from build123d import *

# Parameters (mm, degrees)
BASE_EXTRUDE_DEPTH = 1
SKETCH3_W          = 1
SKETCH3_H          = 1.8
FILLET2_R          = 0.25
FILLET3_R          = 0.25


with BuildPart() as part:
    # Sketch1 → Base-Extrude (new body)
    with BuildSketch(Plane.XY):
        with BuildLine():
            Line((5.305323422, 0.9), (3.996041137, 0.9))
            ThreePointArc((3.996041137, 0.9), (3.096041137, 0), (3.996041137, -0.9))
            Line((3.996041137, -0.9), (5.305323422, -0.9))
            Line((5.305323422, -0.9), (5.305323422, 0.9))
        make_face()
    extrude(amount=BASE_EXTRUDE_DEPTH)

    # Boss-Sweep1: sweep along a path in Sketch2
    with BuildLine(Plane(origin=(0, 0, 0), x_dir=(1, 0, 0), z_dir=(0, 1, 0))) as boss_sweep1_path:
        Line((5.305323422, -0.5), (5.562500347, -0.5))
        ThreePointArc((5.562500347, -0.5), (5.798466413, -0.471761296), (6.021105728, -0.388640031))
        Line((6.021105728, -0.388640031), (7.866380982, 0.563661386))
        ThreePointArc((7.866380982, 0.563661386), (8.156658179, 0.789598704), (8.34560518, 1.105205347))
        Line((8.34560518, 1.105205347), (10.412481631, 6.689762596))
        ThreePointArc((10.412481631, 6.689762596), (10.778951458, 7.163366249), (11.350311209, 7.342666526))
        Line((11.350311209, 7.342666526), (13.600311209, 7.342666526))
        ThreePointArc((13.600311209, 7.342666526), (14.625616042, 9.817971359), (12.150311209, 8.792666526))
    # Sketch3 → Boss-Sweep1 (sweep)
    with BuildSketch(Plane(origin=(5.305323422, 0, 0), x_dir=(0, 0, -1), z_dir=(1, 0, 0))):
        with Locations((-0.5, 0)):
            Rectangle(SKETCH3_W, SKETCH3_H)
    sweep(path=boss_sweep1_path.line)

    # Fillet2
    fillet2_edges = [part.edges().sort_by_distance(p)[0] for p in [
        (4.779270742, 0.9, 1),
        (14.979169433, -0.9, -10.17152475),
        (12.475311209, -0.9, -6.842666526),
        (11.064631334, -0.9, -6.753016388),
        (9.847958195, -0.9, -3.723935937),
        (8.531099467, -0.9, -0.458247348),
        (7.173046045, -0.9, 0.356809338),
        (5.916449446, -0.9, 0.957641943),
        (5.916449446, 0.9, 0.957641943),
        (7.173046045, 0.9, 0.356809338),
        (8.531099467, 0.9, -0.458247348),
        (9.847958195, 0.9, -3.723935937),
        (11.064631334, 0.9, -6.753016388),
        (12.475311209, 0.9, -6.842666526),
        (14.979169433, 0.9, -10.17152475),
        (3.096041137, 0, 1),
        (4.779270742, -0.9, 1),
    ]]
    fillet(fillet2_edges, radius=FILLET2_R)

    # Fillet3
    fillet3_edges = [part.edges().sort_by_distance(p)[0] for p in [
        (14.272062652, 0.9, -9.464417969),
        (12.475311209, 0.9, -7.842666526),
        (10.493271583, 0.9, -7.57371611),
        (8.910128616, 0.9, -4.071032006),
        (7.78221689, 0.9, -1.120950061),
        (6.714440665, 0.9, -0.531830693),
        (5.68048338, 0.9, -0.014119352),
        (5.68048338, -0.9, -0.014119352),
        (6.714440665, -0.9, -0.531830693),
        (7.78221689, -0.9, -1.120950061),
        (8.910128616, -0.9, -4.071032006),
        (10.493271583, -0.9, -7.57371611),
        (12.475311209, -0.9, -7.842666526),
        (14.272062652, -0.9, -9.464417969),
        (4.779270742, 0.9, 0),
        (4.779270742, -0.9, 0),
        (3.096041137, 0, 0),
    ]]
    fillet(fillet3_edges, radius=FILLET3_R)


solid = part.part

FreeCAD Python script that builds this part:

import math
import FreeCAD as App
import Part
import Sketcher
Q = App.Units.Quantity


def edges_at(feature, points):
    """Names of the edges that pass closest to the given points."""
    edges = feature.Shape.Edges
    near = lambda p: min(range(len(edges)), key=lambda i: edges[i].distToShape(Part.Vertex(*p))[0])
    return sorted({f"Edge{near(p) + 1}" for p in points})

doc = App.newDocument("Part")
body = doc.addObject("PartDesign::Body", "Body")

sketch1 = body.newObject("Sketcher::SketchObject", "Sketch")
sketch1.AttachmentSupport = (doc.getObject("XY_Plane"), [""])
sketch1.MapMode = "FlatFace"
sketch1.addGeometry(Part.LineSegment(App.Vector(5.305323, 0.9, 0), App.Vector(3.996041, 0.9, 0)), False)
sketch1.addGeometry(Part.ArcOfCircle(Part.Circle(App.Vector(3.996041, 0, 0), App.Vector(0, 0, 1), 0.9), math.radians(90), math.radians(270)), False)
sketch1.addGeometry(Part.LineSegment(App.Vector(3.996041, -0.9, 0), App.Vector(5.305323, -0.9, 0)), False)
sketch1.addGeometry(Part.LineSegment(App.Vector(5.305323, -0.9, 0), App.Vector(5.305323, 0.9, 0)), False)
sketch1.addConstraint(Sketcher.Constraint("Tangent", 0, 2, 1, 1))
sketch1.addConstraint(Sketcher.Constraint("Tangent", 1, 2, 2, 1))
sketch1.addConstraint(Sketcher.Constraint("Coincident", 2, 2, 3, 1))
sketch1.addConstraint(Sketcher.Constraint("Coincident", 3, 2, 0, 1))
sketch1.addConstraint(Sketcher.Constraint("Horizontal", 0))
sketch1.addConstraint(Sketcher.Constraint("Horizontal", 2))
sketch1.addConstraint(Sketcher.Constraint("Vertical", 3))
sketch1.addConstraint(Sketcher.Constraint("PointOnObject", 1, 3, -1))
sketch1.addConstraint(Sketcher.Constraint("Radius", 1, Q("0.9 mm")))
sketch1.addConstraint(Sketcher.Constraint("DistanceX", 0, 2, 0, 1, Q("1.309282 mm")))
sketch1.addConstraint(Sketcher.Constraint("DistanceX", -1, 1, 1, 3, Q("3.996041 mm")))
pad1 = body.newObject("PartDesign::Pad", "Pad")
pad1.Profile = sketch1
pad1.Length = 1

sketch2 = body.newObject("Sketcher::SketchObject", "Sketch001")
sketch2.AttachmentSupport = (doc.getObject("YZ_Plane"), [""])
sketch2.MapMode = "FlatFace"
sketch2.AttachmentOffset = App.Placement(App.Vector(0, 0, 5.305323), App.Rotation())
sketch2.addGeometry(Part.LineSegment(App.Vector(0.9, 1, 0), App.Vector(-0.9, 1, 0)), False)
sketch2.addGeometry(Part.LineSegment(App.Vector(-0.9, 1, 0), App.Vector(-0.9, 0, 0)), False)
sketch2.addGeometry(Part.LineSegment(App.Vector(-0.9, 0, 0), App.Vector(0.9, 0, 0)), False)
sketch2.addGeometry(Part.LineSegment(App.Vector(0.9, 0, 0), App.Vector(0.9, 1, 0)), False)
sketch2.addConstraint(Sketcher.Constraint("Coincident", 0, 2, 1, 1))
sketch2.addConstraint(Sketcher.Constraint("Coincident", 1, 2, 2, 1))
sketch2.addConstraint(Sketcher.Constraint("Coincident", 2, 2, 3, 1))
sketch2.addConstraint(Sketcher.Constraint("Coincident", 3, 2, 0, 1))
sketch2.addConstraint(Sketcher.Constraint("Horizontal", 0))
sketch2.addConstraint(Sketcher.Constraint("Vertical", 1))
sketch2.addConstraint(Sketcher.Constraint("Horizontal", 2))
sketch2.addConstraint(Sketcher.Constraint("Vertical", 3))
sketch2.addConstraint(Sketcher.Constraint("Symmetric", 1, 2, 2, 2, -1, 1))
sketch2.addConstraint(Sketcher.Constraint("DistanceY", 1, 2, 1, 1, Q("1 mm")))
sketch2.addConstraint(Sketcher.Constraint("DistanceX", 0, 2, 0, 1, Q("1.8 mm")))

sketch3 = body.newObject("Sketcher::SketchObject", "Sketch002")
sketch3.AttachmentSupport = (doc.getObject("XZ_Plane"), [""])
sketch3.MapMode = "FlatFace"
sketch3.addGeometry(Part.LineSegment(App.Vector(5.305323, 0.5, 0), App.Vector(5.5625, 0.5, 0)), False)
sketch3.addGeometry(Part.ArcOfCircle(Part.Circle(App.Vector(5.5625, -0.5, 0), App.Vector(0, 0, 1), 1), math.radians(62.702848), math.radians(90)), False)
sketch3.addGeometry(Part.LineSegment(App.Vector(6.021106, 0.38864, 0), App.Vector(7.866381, -0.563661, 0)), False)
sketch3.addGeometry(Part.ArcOfCircle(Part.Circle(App.Vector(7.407776, -1.452301, 0), App.Vector(0, 0, 1), 1), math.radians(20.3098), math.radians(62.702848)), False)
sketch3.addGeometry(Part.LineSegment(App.Vector(8.345605, -1.105205, 0), App.Vector(10.412482, -6.689763, 0)), False)
sketch3.addGeometry(Part.ArcOfCircle(Part.Circle(App.Vector(11.350311, -6.342667, 0), App.Vector(0, 0, 1), 1), math.radians(-159.6902), math.radians(-90)), False)
sketch3.addGeometry(Part.LineSegment(App.Vector(11.350311, -7.342667, 0), App.Vector(13.600311, -7.342667, 0)), False)
sketch3.addGeometry(Part.ArcOfCircle(Part.Circle(App.Vector(13.600311, -8.792667, 0), App.Vector(0, 0, 1), 1.45), math.radians(180), math.radians(450)), False)
sketch3.addConstraint(Sketcher.Constraint("Tangent", 0, 2, 1, 2))
sketch3.addConstraint(Sketcher.Constraint("Tangent", 1, 1, 2, 1))
sketch3.addConstraint(Sketcher.Constraint("Tangent", 2, 2, 3, 2))
sketch3.addConstraint(Sketcher.Constraint("Tangent", 3, 1, 4, 1))
sketch3.addConstraint(Sketcher.Constraint("Tangent", 4, 2, 5, 1))
sketch3.addConstraint(Sketcher.Constraint("Tangent", 5, 2, 6, 1))
sketch3.addConstraint(Sketcher.Constraint("Tangent", 6, 2, 7, 2))
sketch3.addConstraint(Sketcher.Constraint("Horizontal", 0))
sketch3.addConstraint(Sketcher.Constraint("Horizontal", 6))
sketch3.addConstraint(Sketcher.Constraint("Equal", 1, 3))
sketch3.addConstraint(Sketcher.Constraint("Equal", 3, 5))
sketch3.addConstraint(Sketcher.Constraint("Radius", 1, Q("1 mm")))
sketch3.addConstraint(Sketcher.Constraint("Radius", 7, Q("1.45 mm")))
sketch3.addConstraint(Sketcher.Constraint("DistanceX", 6, 1, 6, 2, Q("2.25 mm")))
sketch3.addConstraint(Sketcher.Constraint("DistanceY", 1, 3, -1, 1, Q("0.5 mm")))
sketch3.addConstraint(Sketcher.Constraint("DistanceY", 7, 1, 5, 2, Q("1.45 mm")))
sketch3.addConstraint(Sketcher.Constraint("DistanceX", -1, 1, 1, 3, Q("5.5625 mm")))
sketch3.addConstraint(Sketcher.Constraint("DistanceY", 3, 3, -1, 1, Q("1.452301 mm")))
sketch3.addConstraint(Sketcher.Constraint("DistanceX", 1, 1, 3, 1, Q("2.324499 mm")))
sketch3.addConstraint(Sketcher.Constraint("DistanceX", 2, 2, 4, 2, Q("2.546101 mm")))
sketch3.addConstraint(Sketcher.Constraint("DistanceY", 4, 2, 2, 2, Q("6.126101 mm")))
sketch3.addConstraint(Sketcher.Constraint("DistanceX", 0, 1, 0, 2, Q("0.257177 mm")))
doc.recompute()

additivepipe = body.newObject("PartDesign::AdditivePipe", "AdditivePipe")
additivepipe.Profile = sketch2
additivepipe.Spine = (sketch3, ["Edge1", "Edge2", "Edge3", "Edge4", "Edge5", "Edge6", "Edge7", "Edge8"])
doc.recompute()

fillet = body.newObject("PartDesign::Fillet", "Fillet")
fillet.Base = (additivepipe, edges_at(additivepipe, [
    (4.779, 0.9, 1),
    (14.979, -0.9, -10.172),
    (12.475, -0.9, -6.843),
    (11.065, -0.9, -6.753),
    (9.848, -0.9, -3.724),
    (8.531, -0.9, -0.458),
    (7.173, -0.9, 0.357),
    (5.916, -0.9, 0.958),
    (5.916, 0.9, 0.958),
    (7.173, 0.9, 0.357),
    (8.531, 0.9, -0.458),
    (9.848, 0.9, -3.724),
    (11.065, 0.9, -6.753),
    (12.475, 0.9, -6.843),
    (14.979, 0.9, -10.172),
    (3.096, 0, 1),
    (4.779, -0.9, 1),
]))
fillet.Radius = 0.25
doc.recompute()

fillet2 = body.newObject("PartDesign::Fillet", "Fillet001")
fillet2.Base = (fillet, edges_at(fillet, [
    (14.272, 0.9, -9.464),
    (12.475, 0.9, -7.843),
    (10.493, 0.9, -7.574),
    (8.91, 0.9, -4.071),
    (7.782, 0.9, -1.121),
    (6.714, 0.9, -0.532),
    (5.68, 0.9, -0.014),
    (5.68, -0.9, -0.014),
    (6.714, -0.9, -0.532),
    (7.782, -0.9, -1.121),
    (8.91, -0.9, -4.071),
    (10.493, -0.9, -7.574),
    (12.475, -0.9, -7.843),
    (14.272, -0.9, -9.464),
    (4.779, 0.9, 0),
    (4.779, -0.9, 0),
    (3.096, 0, 0),
]))
fillet2.Radius = 0.25

doc.recompute()
